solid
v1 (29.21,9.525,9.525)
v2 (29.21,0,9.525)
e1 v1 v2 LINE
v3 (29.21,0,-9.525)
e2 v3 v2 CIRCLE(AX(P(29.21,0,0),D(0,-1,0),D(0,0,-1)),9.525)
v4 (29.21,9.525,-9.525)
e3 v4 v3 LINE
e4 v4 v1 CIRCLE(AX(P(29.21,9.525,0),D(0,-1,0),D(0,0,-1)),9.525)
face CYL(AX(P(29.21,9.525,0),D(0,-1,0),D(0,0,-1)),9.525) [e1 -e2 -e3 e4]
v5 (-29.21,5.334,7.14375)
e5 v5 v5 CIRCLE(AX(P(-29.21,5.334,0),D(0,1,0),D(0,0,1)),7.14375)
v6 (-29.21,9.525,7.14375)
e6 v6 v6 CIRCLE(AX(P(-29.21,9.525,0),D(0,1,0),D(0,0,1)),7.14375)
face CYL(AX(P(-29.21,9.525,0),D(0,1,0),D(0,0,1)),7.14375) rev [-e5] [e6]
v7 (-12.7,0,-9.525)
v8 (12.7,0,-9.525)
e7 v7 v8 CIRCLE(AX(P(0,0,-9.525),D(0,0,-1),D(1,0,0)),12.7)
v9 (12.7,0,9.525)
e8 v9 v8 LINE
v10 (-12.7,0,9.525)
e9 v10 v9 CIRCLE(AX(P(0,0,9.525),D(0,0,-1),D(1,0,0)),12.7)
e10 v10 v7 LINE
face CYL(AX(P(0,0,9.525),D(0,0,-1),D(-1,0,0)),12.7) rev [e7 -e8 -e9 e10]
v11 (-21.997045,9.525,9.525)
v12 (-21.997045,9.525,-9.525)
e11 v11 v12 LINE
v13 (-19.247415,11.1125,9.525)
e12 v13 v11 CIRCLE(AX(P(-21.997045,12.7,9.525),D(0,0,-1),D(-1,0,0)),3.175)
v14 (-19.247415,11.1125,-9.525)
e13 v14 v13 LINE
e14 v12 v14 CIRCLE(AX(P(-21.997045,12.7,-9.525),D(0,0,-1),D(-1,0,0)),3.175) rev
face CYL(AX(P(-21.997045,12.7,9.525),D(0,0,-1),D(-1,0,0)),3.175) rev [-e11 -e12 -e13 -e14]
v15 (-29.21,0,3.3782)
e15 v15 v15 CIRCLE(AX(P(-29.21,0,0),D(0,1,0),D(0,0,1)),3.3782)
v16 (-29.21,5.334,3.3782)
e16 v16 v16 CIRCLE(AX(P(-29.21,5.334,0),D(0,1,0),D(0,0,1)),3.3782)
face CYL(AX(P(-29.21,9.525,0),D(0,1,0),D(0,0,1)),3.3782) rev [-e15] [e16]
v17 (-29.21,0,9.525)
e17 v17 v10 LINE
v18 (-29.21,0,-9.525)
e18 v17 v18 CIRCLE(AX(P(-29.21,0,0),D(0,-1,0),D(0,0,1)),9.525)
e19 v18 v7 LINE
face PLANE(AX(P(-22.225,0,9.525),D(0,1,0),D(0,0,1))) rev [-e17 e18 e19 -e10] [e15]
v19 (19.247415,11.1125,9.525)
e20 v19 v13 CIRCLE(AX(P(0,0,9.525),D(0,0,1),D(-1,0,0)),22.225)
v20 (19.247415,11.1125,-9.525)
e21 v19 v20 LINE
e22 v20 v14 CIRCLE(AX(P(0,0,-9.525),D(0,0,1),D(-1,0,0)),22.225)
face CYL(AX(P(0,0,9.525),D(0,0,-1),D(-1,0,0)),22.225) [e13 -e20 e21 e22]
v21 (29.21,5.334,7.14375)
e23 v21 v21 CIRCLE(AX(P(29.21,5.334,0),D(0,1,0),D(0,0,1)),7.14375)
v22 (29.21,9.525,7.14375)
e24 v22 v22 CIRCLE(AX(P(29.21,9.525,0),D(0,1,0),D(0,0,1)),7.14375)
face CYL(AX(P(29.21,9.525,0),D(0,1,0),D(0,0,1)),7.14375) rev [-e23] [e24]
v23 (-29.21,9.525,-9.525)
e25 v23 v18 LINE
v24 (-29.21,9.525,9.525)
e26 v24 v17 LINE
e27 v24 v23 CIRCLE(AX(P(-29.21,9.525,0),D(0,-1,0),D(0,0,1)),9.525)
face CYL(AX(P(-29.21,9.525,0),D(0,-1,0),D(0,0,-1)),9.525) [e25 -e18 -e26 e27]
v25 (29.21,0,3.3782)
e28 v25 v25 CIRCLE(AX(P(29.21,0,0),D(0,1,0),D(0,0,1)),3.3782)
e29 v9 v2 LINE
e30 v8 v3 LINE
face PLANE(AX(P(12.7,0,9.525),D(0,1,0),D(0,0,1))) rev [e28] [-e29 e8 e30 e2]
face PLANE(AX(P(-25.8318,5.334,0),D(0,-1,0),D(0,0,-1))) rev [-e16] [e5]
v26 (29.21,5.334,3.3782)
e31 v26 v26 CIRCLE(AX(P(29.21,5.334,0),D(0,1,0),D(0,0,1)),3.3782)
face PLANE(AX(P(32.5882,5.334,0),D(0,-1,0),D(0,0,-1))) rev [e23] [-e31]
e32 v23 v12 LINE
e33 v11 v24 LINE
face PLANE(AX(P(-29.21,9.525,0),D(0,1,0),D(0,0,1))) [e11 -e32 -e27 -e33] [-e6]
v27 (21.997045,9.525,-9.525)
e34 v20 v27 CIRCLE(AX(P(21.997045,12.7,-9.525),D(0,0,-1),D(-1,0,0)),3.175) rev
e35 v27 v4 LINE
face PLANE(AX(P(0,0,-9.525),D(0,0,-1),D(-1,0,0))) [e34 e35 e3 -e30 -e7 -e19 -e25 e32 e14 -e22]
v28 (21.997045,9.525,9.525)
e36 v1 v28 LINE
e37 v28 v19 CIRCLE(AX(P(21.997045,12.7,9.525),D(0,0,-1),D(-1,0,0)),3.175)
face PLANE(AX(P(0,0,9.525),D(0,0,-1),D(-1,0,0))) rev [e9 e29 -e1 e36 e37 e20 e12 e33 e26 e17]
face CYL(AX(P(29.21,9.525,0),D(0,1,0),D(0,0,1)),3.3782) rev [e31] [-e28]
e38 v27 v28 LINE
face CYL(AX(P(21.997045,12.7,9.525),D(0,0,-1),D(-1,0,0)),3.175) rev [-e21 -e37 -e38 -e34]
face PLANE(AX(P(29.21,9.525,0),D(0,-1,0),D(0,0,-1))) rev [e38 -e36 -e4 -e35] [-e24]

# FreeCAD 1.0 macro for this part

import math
import FreeCAD as App
import Part
import Sketcher
from FreeCAD import Vector
Q = App.Units.Quantity


def edges_at(feature, points):
    """Names of the edges that pass closest to the given points."""
    edges = feature.Shape.Edges
    near = lambda p: min(range(len(edges)), key=lambda i: edges[i].distToShape(Part.Vertex(*p))[0])
    return sorted({f"Edge{near(p) + 1}" for p in points})

doc = App.newDocument("Part")
body = doc.addObject("PartDesign::Body", "Body")

sketch1 = body.newObject("Sketcher::SketchObject", "Sketch")
sketch1.AttachmentSupport = (doc.getObject("XY_Plane"), [""])
sketch1.MapMode = "FlatFace"
sketch1.addGeometry([
    Part.LineSegment(Vector(-22, 0, 0), Vector(-13, 0, 0)),
    Part.ArcOfCircle(Part.Circle(Vector(0, 0, 0), Vector(0, 0, 1), 13), math.radians(0), math.radians(180)),
    Part.LineSegment(Vector(13, 0, 0), Vector(22, 0, 0)),
    Part.ArcOfCircle(Part.Circle(Vector(0, 0, 0), Vector(0, 0, 1), 22), math.radians(0), math.radians(180)),
], False)
sketch1.addConstraint([
    Sketcher.Constraint("Coincident", 0, 2, 1, 2),
    Sketcher.Constraint("Coincident", 1, 1, 2, 1),
    Sketcher.Constraint("Coincident", 2, 2, 3, 1),
    Sketcher.Constraint("Coincident", 3, 2, 0, 1),
    Sketcher.Constraint("Horizontal", 0),
    Sketcher.Constraint("Horizontal", 2),
    Sketcher.Constraint("Coincident", 1, 3, -1, 1),
    Sketcher.Constraint("Coincident", 3, 3, -1, 1),
    Sketcher.Constraint("PointOnObject", 0, 2, -1),
    Sketcher.Constraint("PointOnObject", 1, 1, -1),
    Sketcher.Constraint("Radius", 1, Q("0.5 in")),
    Sketcher.Constraint("Radius", 3, Q("0.875 in")),
])
pad1 = body.newObject("PartDesign::Pad", "Pad")
pad1.Profile = sketch1
pad1.Length = Q("0.75 in")
pad1.Midplane = True

sketch2 = body.newObject("Sketcher::SketchObject", "Sketch001")
sketch2.AttachmentSupport = (doc.getObject("XZ_Plane"), [""])
sketch2.MapMode = "FlatFace"
sketch2.addGeometry([
    Part.LineSegment(Vector(-29, -10, 0), Vector(-13, -10, 0)),
    Part.LineSegment(Vector(-13, -10, 0), Vector(-13, 10, 0)),
    Part.LineSegment(Vector(-13, 10, 0), Vector(-29, 10, 0)),
    Part.ArcOfCircle(Part.Circle(Vector(-29, 0, 0), Vector(0, 0, 1), 10), math.radians(90), math.radians(270)),
    Part.LineSegment(Vector(13, 10, 0), Vector(13, -10, 0)),
    Part.LineSegment(Vector(13, -10, 0), Vector(29, -10, 0)),
    Part.ArcOfCircle(Part.Circle(Vector(29, 0, 0), Vector(0, 0, 1), 10), math.radians(-90), math.radians(90)),
    Part.LineSegment(Vector(29, 10, 0), Vector(13, 10, 0)),
], False)
sketch2.addConstraint([
    Sketcher.Constraint("Coincident", 0, 2, 1, 1),
    Sketcher.Constraint("Coincident", 1, 2, 2, 1),
    Sketcher.Constraint("Tangent", 2, 2, 3, 1),
    Sketcher.Constraint("Tangent", 3, 2, 0, 1),
    Sketcher.Constraint("Coincident", 4, 2, 5, 1),
    Sketcher.Constraint("Tangent", 5, 2, 6, 1),
    Sketcher.Constraint("Tangent", 6, 2, 7, 1),
    Sketcher.Constraint("Coincident", 7, 2, 4, 1),
    Sketcher.Constraint("Horizontal", 0),
    Sketcher.Constraint("Vertical", 1),
    Sketcher.Constraint("Horizontal", 2),
    Sketcher.Constraint("Vertical", 4),
    Sketcher.Constraint("Horizontal", 5),
    Sketcher.Constraint("Horizontal", 7),
    Sketcher.Constraint("Equal", 3, 6),
    Sketcher.Constraint("Symmetric", 3, 3, 6, 3, -1, 1),
    Sketcher.Constraint("Symmetric", 0, 2, 4, 2, -2),
    Sketcher.Constraint("Radius", 3, Q("0.375 in")),
    Sketcher.Constraint("DistanceX", 0, 2, 4, 2, Q("1 in")),
    Sketcher.Constraint("DistanceX", 0, 1, 0, 2, Q("0.65 in")),
])
pad2 = body.newObject("PartDesign::Pad", "Pad001")
pad2.Profile = sketch2
pad2.Length = Q("0.375 in")
pad2.Reversed = True
doc.recompute()

fillet = body.newObject("PartDesign::Fillet", "Fillet")
fillet.Base = (pad2, edges_at(pad2, [(-20.08, 9.525, 0), (20.08, 9.525, 0)]))
fillet.Radius = Q("0.125 in")

sketch3 = body.newObject("Sketcher::SketchObject", "Sketch002")
sketch3.AttachmentSupport = (doc.getObject("XZ_Plane"), [""])
sketch3.MapMode = "FlatFace"
sketch3.AttachmentOffset = App.Placement(Vector(0, 0, -0.375 * 25.4), App.Rotation())
sketch3.addGeometry([
    Part.Circle(Vector(-29.2, 0, 0), Vector(0, 0, 1), 3.4),
    Part.Circle(Vector(29.2, 0, 0), Vector(0, 0, 1), 3.4),
], False)
sketch3.addConstraint([
    Sketcher.Constraint("Equal", 0, 1),
    Sketcher.Constraint("Symmetric", 0, 3, 1, 3, -1, 1),
    Sketcher.Constraint("PointOnObject", 0, 3, -1),
    Sketcher.Constraint("Diameter", 0, Q("0.266 in")),
    Sketcher.Constraint("DistanceX", 0, 3, 1, 3, Q("2.3 in")),
])
doc.recompute()
hole = body.newObject("PartDesign::Hole", "Hole")
hole.Profile = sketch3
hole.ThreadType = "None"
hole.Diameter = Q("0.266 in")
hole.DepthType = "ThroughAll"
hole.HoleCutType = "Counterbore"
hole.HoleCutDiameter = Q("0.5625 in")
hole.HoleCutDepth = Q("0.165 in")
hole.Reversed = True

doc.recompute()
